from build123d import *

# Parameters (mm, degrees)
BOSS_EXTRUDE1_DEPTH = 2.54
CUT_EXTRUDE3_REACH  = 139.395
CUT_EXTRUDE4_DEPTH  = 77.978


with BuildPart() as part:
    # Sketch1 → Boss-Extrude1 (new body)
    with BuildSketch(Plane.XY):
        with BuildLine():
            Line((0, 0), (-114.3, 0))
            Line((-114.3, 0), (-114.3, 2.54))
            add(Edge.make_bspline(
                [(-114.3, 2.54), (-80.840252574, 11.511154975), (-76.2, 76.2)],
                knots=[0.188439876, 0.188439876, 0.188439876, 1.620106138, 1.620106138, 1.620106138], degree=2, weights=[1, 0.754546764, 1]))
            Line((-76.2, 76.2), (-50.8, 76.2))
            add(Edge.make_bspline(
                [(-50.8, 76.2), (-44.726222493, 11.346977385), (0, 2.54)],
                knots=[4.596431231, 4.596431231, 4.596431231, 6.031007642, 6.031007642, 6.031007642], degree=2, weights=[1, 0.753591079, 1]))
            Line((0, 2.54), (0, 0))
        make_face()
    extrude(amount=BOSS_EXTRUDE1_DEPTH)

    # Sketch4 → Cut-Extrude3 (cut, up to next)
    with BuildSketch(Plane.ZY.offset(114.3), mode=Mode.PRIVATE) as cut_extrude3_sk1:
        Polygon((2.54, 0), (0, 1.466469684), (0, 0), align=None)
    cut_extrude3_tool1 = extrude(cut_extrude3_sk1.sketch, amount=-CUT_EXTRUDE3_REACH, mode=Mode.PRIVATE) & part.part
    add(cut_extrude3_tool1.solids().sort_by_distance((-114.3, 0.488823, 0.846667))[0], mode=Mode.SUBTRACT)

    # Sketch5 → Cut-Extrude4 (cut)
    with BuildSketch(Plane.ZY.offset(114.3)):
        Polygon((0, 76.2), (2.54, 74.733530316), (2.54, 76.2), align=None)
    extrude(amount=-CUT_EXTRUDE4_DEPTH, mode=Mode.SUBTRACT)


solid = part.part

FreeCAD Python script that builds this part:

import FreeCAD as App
import Part
import Sketcher
Q = App.Units.Quantity

doc = App.newDocument("Part")
body = doc.addObject("PartDesign::Body", "Body")

# Sketch on XY plane
sketch1 = body.newObject("Sketcher::SketchObject", "Sketch")
sketch1.AttachmentSupport = (doc.getObject("XY_Plane"), [""])
sketch1.MapMode = "FlatFace"
sketch1.addGeometry([
    Part.LineSegment(App.Vector(-114.3, 0, 0), App.Vector(0, 0, 0)),  # 0
    Part.LineSegment(App.Vector(0, 0, 0), App.Vector(0, 2.54, 0)),  # 1
    Part.BSplineCurve([App.Vector(-50.8, 76.2, 0), App.Vector(-44.726222, 11.346977, 0), App.Vector(0, 2.54, 0)], [3, 3], [4.596431231, 6.031007642], False, 2, [1, 0.753591079, 1], False),  # 2
    Part.LineSegment(App.Vector(-50.8, 76.2, 0), App.Vector(-76.2, 76.2, 0)),  # 3
    Part.BSplineCurve([App.Vector(-114.3, 2.54, 0), App.Vector(-80.840253, 11.511155, 0), App.Vector(-76.2, 76.2, 0)], [3, 3], [0.188439876, 1.620106138], False, 2, [1, 0.754546764, 1], False),  # 4
    Part.LineSegment(App.Vector(-114.3, 2.54, 0), App.Vector(-114.3, 0, 0)),  # 5
], False)
sketch1.addConstraint([
    Sketcher.Constraint("Block", 2),
    Sketcher.Constraint("Block", 4),
    Sketcher.Constraint("Coincident", 0, 2, 1, 1),
    Sketcher.Constraint("Coincident", 1, 2, 2, 2),
    Sketcher.Constraint("Coincident", 2, 1, 3, 1),
    Sketcher.Constraint("Coincident", 3, 2, 4, 2),
    Sketcher.Constraint("Coincident", 4, 1, 5, 1),
    Sketcher.Constraint("Coincident", 5, 2, 0, 1),
    Sketcher.Constraint("Horizontal", 0),
    Sketcher.Constraint("Vertical", 1),
    Sketcher.Constraint("Vertical", 5),
    Sketcher.Constraint("PointOnObject", 5, 2, -1),
])
pad1 = body.newObject("PartDesign::Pad", "Pad")
pad1.Profile = sketch1
pad1.Length = Q("0.1 in")

# Sketch on YZ plane
sketch2 = body.newObject("Sketcher::SketchObject", "Sketch001")
sketch2.AttachmentSupport = (doc.getObject("YZ_Plane"), [""])
sketch2.MapMode = "FlatFace"
sketch2.AttachmentOffset = App.Placement(App.Vector(0, 0, -4.5 * 25.4), App.Rotation())
sketch2.addGeometry([
    Part.LineSegment(App.Vector(0, 2.5, 0), App.Vector(1.5, 0, 0)),
    Part.LineSegment(App.Vector(1.5, 0, 0), App.Vector(0, 0, 0)),
    Part.LineSegment(App.Vector(0, 0, 0), App.Vector(0, 2.5, 0)),
], False)
sketch2.addConstraint([
    Sketcher.Constraint("Coincident", 0, 2, 1, 1),
    Sketcher.Constraint("Coincident", 1, 2, 2, 1),
    Sketcher.Constraint("Coincident", 2, 2, 0, 1),
    Sketcher.Constraint("Horizontal", 1),
    Sketcher.Constraint("Vertical", 2),
    Sketcher.Constraint("Coincident", 1, 2, -1, 1),
    Sketcher.Constraint("DistanceY", 2, 1, 2, 2, Q("0.1 in")),
    Sketcher.Constraint("Angle", 0, Q("-60 deg")),
])
pocket1 = body.newObject("PartDesign::Pocket", "Pocket")
pocket1.Profile = sketch2
pocket1.Type = "UpToFirst"
pocket1.Reversed = True

# Sketch on YZ plane
sketch3 = body.newObject("Sketcher::SketchObject", "Sketch002")
sketch3.AttachmentSupport = (doc.getObject("YZ_Plane"), [""])
sketch3.MapMode = "FlatFace"
sketch3.AttachmentOffset = App.Placement(App.Vector(0, 0, -4.5 * 25.4), App.Rotation())
sketch3.addGeometry([
    Part.LineSegment(App.Vector(76.2, 0, 0), App.Vector(74.7, 2.5, 0)),
    Part.LineSegment(App.Vector(74.7, 2.5, 0), App.Vector(76.2, 2.5, 0)),
    Part.LineSegment(App.Vector(76.2, 2.5, 0), App.Vector(76.2, 0, 0)),
], False)
sketch3.addConstraint([
    Sketcher.Constraint("Coincident", 0, 2, 1, 1),
    Sketcher.Constraint("Coincident", 1, 2, 2, 1),
    Sketcher.Constraint("Coincident", 2, 2, 0, 1),
    Sketcher.Constraint("Horizontal", 1),
    Sketcher.Constraint("Vertical", 2),
    Sketcher.Constraint("PointOnObject", 2, 2, -1),
    Sketcher.Constraint("DistanceY", 2, 2, 2, 1, Q("0.1 in")),
    Sketcher.Constraint("DistanceX", -1, 1, 1, 2, Q("3 in")),
    Sketcher.Constraint("Angle", 0, Q("120 deg")),
])
pocket2 = body.newObject("PartDesign::Pocket", "Pocket001")
pocket2.Profile = sketch3
pocket2.Length = Q("3.07 in")
pocket2.Reversed = True

doc.recompute()
